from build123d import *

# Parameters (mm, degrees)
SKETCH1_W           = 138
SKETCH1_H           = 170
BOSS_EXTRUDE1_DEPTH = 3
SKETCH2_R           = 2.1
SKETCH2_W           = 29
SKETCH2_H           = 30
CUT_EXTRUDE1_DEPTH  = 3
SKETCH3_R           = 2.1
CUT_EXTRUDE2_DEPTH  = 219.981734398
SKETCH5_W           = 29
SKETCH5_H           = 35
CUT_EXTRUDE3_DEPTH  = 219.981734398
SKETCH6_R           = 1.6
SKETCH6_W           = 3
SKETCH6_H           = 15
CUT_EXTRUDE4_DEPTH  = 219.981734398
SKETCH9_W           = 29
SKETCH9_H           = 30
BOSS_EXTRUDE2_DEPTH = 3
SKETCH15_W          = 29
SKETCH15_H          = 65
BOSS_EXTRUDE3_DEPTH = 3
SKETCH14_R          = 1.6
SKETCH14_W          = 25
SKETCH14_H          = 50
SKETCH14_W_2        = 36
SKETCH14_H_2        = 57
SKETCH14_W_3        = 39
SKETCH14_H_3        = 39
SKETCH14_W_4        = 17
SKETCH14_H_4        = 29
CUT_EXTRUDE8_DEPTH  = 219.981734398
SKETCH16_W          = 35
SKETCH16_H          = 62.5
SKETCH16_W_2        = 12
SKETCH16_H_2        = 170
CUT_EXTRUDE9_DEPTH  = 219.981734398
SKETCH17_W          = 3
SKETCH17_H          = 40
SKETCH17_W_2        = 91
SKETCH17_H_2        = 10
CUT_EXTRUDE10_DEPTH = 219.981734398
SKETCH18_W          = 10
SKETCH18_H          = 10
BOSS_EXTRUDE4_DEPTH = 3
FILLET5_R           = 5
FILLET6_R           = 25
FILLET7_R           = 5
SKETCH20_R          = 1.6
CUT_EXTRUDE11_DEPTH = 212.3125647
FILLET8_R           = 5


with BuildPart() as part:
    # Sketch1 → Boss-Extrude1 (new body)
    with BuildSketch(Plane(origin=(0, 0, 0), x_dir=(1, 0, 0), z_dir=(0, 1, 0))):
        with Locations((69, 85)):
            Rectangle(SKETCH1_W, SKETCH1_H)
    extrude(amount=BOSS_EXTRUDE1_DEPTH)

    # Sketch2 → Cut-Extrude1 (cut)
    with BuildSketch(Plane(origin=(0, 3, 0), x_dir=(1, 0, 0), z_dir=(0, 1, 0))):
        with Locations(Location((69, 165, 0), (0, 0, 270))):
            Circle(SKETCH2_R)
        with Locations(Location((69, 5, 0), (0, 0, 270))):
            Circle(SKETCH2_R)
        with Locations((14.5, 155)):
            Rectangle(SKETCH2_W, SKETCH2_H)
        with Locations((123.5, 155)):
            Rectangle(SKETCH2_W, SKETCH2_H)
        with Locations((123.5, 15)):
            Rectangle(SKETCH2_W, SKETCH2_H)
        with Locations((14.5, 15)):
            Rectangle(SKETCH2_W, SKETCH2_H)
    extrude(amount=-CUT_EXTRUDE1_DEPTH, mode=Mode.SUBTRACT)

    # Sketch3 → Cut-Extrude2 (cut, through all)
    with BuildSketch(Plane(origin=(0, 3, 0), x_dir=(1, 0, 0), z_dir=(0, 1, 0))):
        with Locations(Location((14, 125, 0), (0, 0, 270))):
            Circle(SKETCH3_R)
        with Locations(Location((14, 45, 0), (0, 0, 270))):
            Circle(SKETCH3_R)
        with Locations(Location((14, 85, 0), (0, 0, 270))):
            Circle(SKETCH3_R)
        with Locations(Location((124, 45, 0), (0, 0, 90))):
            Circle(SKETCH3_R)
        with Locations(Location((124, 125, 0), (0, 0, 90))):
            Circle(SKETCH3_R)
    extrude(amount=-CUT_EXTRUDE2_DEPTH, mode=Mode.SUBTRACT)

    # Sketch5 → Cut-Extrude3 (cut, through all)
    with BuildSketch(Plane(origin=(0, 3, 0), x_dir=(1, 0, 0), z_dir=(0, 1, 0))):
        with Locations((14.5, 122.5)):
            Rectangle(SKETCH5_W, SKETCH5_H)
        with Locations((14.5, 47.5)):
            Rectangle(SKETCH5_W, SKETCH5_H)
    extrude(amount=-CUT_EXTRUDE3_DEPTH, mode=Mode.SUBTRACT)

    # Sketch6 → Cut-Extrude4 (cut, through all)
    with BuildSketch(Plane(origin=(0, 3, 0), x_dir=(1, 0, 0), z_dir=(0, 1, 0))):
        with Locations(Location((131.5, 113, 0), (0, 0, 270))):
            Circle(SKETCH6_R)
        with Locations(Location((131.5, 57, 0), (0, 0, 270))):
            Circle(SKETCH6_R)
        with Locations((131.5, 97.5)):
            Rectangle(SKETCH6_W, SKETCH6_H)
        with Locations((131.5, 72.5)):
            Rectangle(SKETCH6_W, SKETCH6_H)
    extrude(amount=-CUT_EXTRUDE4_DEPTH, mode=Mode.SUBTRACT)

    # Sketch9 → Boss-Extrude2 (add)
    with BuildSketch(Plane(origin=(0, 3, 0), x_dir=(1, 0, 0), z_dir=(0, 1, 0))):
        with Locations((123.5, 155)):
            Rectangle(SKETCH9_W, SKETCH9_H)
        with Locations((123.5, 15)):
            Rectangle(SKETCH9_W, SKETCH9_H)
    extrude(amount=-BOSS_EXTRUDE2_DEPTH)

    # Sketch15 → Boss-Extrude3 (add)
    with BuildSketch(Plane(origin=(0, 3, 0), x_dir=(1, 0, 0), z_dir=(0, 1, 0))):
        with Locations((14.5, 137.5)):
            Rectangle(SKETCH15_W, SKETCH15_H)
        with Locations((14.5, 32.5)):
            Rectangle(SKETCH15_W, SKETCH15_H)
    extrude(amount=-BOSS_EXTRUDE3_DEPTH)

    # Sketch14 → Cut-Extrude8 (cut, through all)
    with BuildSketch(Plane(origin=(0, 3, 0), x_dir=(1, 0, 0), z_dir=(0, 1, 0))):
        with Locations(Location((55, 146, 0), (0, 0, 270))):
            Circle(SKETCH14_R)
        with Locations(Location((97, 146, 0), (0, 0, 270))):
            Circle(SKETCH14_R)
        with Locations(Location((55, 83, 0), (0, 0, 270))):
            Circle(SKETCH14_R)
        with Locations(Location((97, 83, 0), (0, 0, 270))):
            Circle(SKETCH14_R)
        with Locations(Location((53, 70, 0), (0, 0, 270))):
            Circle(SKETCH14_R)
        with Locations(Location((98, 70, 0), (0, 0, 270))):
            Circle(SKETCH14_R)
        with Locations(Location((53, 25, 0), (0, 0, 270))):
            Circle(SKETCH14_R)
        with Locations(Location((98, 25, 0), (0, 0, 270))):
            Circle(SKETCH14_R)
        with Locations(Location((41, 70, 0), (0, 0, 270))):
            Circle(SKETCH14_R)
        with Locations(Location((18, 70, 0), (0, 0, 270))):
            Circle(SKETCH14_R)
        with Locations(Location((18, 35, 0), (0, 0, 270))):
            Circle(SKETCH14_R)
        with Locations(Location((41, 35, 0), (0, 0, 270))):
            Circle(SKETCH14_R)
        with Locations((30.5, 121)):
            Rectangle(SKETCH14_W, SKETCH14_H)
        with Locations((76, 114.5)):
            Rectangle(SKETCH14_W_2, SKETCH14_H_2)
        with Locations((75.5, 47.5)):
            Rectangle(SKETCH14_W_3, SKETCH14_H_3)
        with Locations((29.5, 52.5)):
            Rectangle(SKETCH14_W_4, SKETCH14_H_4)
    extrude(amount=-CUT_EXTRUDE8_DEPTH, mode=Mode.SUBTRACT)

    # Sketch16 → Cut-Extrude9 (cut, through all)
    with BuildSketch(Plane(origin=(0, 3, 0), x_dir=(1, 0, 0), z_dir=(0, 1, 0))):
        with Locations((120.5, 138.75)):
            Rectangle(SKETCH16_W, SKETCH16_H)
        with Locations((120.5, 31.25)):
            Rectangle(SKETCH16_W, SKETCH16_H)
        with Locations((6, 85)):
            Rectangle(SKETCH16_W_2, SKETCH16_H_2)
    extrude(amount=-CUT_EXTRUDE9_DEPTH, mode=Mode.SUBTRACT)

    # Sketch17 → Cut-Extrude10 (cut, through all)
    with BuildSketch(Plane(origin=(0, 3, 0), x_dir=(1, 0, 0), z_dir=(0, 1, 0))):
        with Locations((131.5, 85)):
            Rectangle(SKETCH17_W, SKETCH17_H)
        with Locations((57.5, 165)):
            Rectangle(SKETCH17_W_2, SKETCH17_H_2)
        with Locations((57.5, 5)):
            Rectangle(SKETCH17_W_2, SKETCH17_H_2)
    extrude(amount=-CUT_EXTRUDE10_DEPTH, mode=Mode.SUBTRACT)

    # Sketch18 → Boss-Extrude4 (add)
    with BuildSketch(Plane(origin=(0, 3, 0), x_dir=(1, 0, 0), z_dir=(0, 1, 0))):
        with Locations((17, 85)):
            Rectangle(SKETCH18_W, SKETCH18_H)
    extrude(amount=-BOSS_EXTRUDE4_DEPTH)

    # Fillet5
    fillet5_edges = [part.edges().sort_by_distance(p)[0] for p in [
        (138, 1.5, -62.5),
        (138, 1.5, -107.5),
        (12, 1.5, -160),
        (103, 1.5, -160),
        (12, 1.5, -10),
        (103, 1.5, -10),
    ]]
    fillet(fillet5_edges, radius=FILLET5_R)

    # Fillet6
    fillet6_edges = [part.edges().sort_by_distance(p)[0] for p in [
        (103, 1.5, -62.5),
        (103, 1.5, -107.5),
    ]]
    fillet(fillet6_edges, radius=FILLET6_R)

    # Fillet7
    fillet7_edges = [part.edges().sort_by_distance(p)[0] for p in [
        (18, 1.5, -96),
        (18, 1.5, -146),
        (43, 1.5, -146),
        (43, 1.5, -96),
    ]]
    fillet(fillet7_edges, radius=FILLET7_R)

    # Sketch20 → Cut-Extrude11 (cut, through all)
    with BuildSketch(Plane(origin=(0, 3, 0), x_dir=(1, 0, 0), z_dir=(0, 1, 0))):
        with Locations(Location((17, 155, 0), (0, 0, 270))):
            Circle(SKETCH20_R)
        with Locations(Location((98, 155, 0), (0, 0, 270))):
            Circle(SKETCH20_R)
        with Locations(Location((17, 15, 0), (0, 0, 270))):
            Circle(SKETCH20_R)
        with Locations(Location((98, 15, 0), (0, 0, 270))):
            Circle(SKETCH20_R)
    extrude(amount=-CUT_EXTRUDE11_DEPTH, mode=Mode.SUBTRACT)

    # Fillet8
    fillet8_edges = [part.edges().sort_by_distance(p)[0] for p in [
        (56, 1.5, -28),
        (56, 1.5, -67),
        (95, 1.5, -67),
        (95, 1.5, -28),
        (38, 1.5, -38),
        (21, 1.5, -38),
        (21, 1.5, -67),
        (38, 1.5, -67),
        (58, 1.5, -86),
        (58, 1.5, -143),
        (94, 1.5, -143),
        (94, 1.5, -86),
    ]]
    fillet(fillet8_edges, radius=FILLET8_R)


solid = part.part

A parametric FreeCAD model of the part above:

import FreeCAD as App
import Part
import Sketcher
Q = App.Units.Quantity


def edges_at(feature, points):
    """Names of the edges that pass closest to the given points."""
    edges = feature.Shape.Edges
    near = lambda p: min(range(len(edges)), key=lambda i: edges[i].distToShape(Part.Vertex(*p))[0])
    return sorted({f"Edge{near(p) + 1}" for p in points})

doc = App.newDocument("Part")
body = doc.addObject("PartDesign::Body", "Body")

# Sketch on XZ plane
sketch1 = body.newObject("Sketcher::SketchObject", "Sketch")
sketch1.AttachmentSupport = (doc.getObject("XZ_Plane"), [""])
sketch1.MapMode = "FlatFace"
sketch1.addGeometry(Part.LineSegment(App.Vector(0, -170, 0), App.Vector(0, 0, 0)), False)
sketch1.addGeometry(Part.LineSegment(App.Vector(0, 0, 0), App.Vector(138, 0, 0)), False)
sketch1.addGeometry(Part.LineSegment(App.Vector(138, 0, 0), App.Vector(138, -170, 0)), False)
sketch1.addGeometry(Part.LineSegment(App.Vector(138, -170, 0), App.Vector(0, -170, 0)), False)
sketch1.addConstraint(Sketcher.Constraint("Coincident", 0, 2, 1, 1))
sketch1.addConstraint(Sketcher.Constraint("Coincident", 1, 2, 2, 1))
sketch1.addConstraint(Sketcher.Constraint("Coincident", 2, 2, 3, 1))
sketch1.addConstraint(Sketcher.Constraint("Coincident", 3, 2, 0, 1))
sketch1.addConstraint(Sketcher.Constraint("Vertical", 0))
sketch1.addConstraint(Sketcher.Constraint("Horizontal", 1))
sketch1.addConstraint(Sketcher.Constraint("Vertical", 2))
sketch1.addConstraint(Sketcher.Constraint("Horizontal", 3))
sketch1.addConstraint(Sketcher.Constraint("Coincident", 0, 2, -1, 1))
sketch1.addConstraint(Sketcher.Constraint("DistanceX", 1, 1, 1, 2, Q("138 mm")))
sketch1.addConstraint(Sketcher.Constraint("DistanceY", 0, 1, 0, 2, Q("170 mm")))
pad1 = body.newObject("PartDesign::Pad", "Pad")
pad1.Profile = sketch1
pad1.Length = 3
pad1.Reversed = True

# Sketch on XZ plane
sketch2 = body.newObject("Sketcher::SketchObject", "Sketch001")
sketch2.AttachmentSupport = (doc.getObject("XZ_Plane"), [""])
sketch2.MapMode = "FlatFace"
sketch2.AttachmentOffset = App.Placement(App.Vector(0, 0, -3), App.Rotation())
sketch2.addGeometry(Part.Circle(App.Vector(69, -165, 0), App.Vector(0, 0, 1), 2.1), False)
sketch2.addGeometry(Part.Circle(App.Vector(69, -5, 0), App.Vector(0, 0, 1), 2.1), False)
sketch2.addGeometry(Part.LineSegment(App.Vector(0, -170, 0), App.Vector(0, -140, 0)), False)
sketch2.addGeometry(Part.LineSegment(App.Vector(0, -140, 0), App.Vector(29, -140, 0)), False)
sketch2.addGeometry(Part.LineSegment(App.Vector(29, -140, 0), App.Vector(29, -170, 0)), False)
sketch2.addGeometry(Part.LineSegment(App.Vector(29, -170, 0), App.Vector(0, -170, 0)), False)
sketch2.addGeometry(Part.LineSegment(App.Vector(109, -170, 0), App.Vector(109, -140, 0)), False)
sketch2.addGeometry(Part.LineSegment(App.Vector(109, -140, 0), App.Vector(138, -140, 0)), False)
sketch2.addGeometry(Part.LineSegment(App.Vector(138, -140, 0), App.Vector(138, -170, 0)), False)
sketch2.addGeometry(Part.LineSegment(App.Vector(138, -170, 0), App.Vector(109, -170, 0)), False)
sketch2.addGeometry(Part.LineSegment(App.Vector(109, -30, 0), App.Vector(109, 0, 0)), False)
sketch2.addGeometry(Part.LineSegment(App.Vector(109, 0, 0), App.Vector(138, 0, 0)), False)
sketch2.addGeometry(Part.LineSegment(App.Vector(138, 0, 0), App.Vector(138, -30, 0)), False)
sketch2.addGeometry(Part.LineSegment(App.Vector(138, -30, 0), App.Vector(109, -30, 0)), False)
sketch2.addGeometry(Part.LineSegment(App.Vector(0, -30, 0), App.Vector(0, 0, 0)), False)
sketch2.addGeometry(Part.LineSegment(App.Vector(0, 0, 0), App.Vector(29, 0, 0)), False)
sketch2.addGeometry(Part.LineSegment(App.Vector(29, 0, 0), App.Vector(29, -30, 0)), False)
sketch2.addGeometry(Part.LineSegment(App.Vector(29, -30, 0), App.Vector(0, -30, 0)), False)
sketch2.addConstraint(Sketcher.Constraint("Coincident", 2, 2, 3, 1))
sketch2.addConstraint(Sketcher.Constraint("Coincident", 3, 2, 4, 1))
sketch2.addConstraint(Sketcher.Constraint("Coincident", 4, 2, 5, 1))
sketch2.addConstraint(Sketcher.Constraint("Coincident", 5, 2, 2, 1))
sketch2.addConstraint(Sketcher.Constraint("Coincident", 6, 2, 7, 1))
sketch2.addConstraint(Sketcher.Constraint("Coincident", 7, 2, 8, 1))
sketch2.addConstraint(Sketcher.Constraint("Coincident", 8, 2, 9, 1))
sketch2.addConstraint(Sketcher.Constraint("Coincident", 9, 2, 6, 1))
sketch2.addConstraint(Sketcher.Constraint("Coincident", 10, 2, 11, 1))
sketch2.addConstraint(Sketcher.Constraint("Coincident", 11, 2, 12, 1))
sketch2.addConstraint(Sketcher.Constraint("Coincident", 12, 2, 13, 1))
sketch2.addConstraint(Sketcher.Constraint("Coincident", 13, 2, 10, 1))
sketch2.addConstraint(Sketcher.Constraint("Coincident", 14, 2, 15, 1))
sketch2.addConstraint(Sketcher.Constraint("Coincident", 15, 2, 16, 1))
sketch2.addConstraint(Sketcher.Constraint("Coincident", 16, 2, 17, 1))
sketch2.addConstraint(Sketcher.Constraint("Coincident", 17, 2, 14, 1))
sketch2.addConstraint(Sketcher.Constraint("Vertical", 2))
sketch2.addConstraint(Sketcher.Constraint("Horizontal", 3))
sketch2.addConstraint(Sketcher.Constraint("Vertical", 4))
sketch2.addConstraint(Sketcher.Constraint("Horizontal", 5))
sketch2.addConstraint(Sketcher.Constraint("Vertical", 6))
sketch2.addConstraint(Sketcher.Constraint("Horizontal", 7))
sketch2.addConstraint(Sketcher.Constraint("Vertical", 8))
sketch2.addConstraint(Sketcher.Constraint("Horizontal", 9))
sketch2.addConstraint(Sketcher.Constraint("Vertical", 10))
sketch2.addConstraint(Sketcher.Constraint("Horizontal", 11))
sketch2.addConstraint(Sketcher.Constraint("Vertical", 12))
sketch2.addConstraint(Sketcher.Constraint("Horizontal", 13))
sketch2.addConstraint(Sketcher.Constraint("Vertical", 14))
sketch2.addConstraint(Sketcher.Constraint("Horizontal", 15))
sketch2.addConstraint(Sketcher.Constraint("Vertical", 16))
sketch2.addConstraint(Sketcher.Constraint("Horizontal", 17))
sketch2.addConstraint(Sketcher.Constraint("Coincident", 14, 2, -1, 1))
sketch2.addConstraint(Sketcher.Constraint("Equal", 0, 1))
sketch2.addConstraint(Sketcher.Constraint("PointOnObject", 2, 2, -2))
sketch2.addConstraint(Sketcher.Constraint("PointOnObject", 10, 2, -1))
sketch2.addConstraint(Sketcher.Constraint("Horizontal", 3, 2, 6, 2))
sketch2.addConstraint(Sketcher.Constraint("Horizontal", 5, 2, 8, 2))
sketch2.addConstraint(Sketcher.Constraint("Horizontal", 13, 2, 16, 2))
sketch2.addConstraint(Sketcher.Constraint("Vertical", 0, 3, 1, 3))
sketch2.addConstraint(Sketcher.Constraint("Vertical", 9, 2, 10, 2))
sketch2.addConstraint(Sketcher.Constraint("Vertical", 8, 2, 11, 2))
sketch2.addConstraint(Sketcher.Constraint("Vertical", 4, 2, 15, 2))
sketch2.addConstraint(Sketcher.Constraint("Equal", 5, 7))
sketch2.addConstraint(Sketcher.Constraint("Equal", 8, 10))
sketch2.addConstraint(Sketcher.Constraint("Diameter", 0, Q("4.2 mm")))
sketch2.addConstraint(Sketcher.Constraint("DistanceX", 3, 1, 3, 2, Q("29 mm")))
sketch2.addConstraint(Sketcher.Constraint("DistanceY", 2, 1, 2, 2, Q("30 mm")))
sketch2.addConstraint(Sketcher.Constraint("DistanceX", -1, 1, 0, 3, Q("69 mm")))
sketch2.addConstraint(Sketcher.Constraint("DistanceY", 0, 3, -1, 1, Q("165 mm")))
sketch2.addConstraint(Sketcher.Constraint("DistanceY", 1, 3, -1, 1, Q("5 mm")))
sketch2.addConstraint(Sketcher.Constraint("DistanceY", 2, 2, -1, 1, Q("140 mm")))
sketch2.addConstraint(Sketcher.Constraint("DistanceX", -1, 1, 6, 2, Q("109 mm")))
pocket1 = body.newObject("PartDesign::Pocket", "Pocket")
pocket1.Profile = sketch2
pocket1.Length = 3
pocket1.Reversed = True

# Sketch on XZ plane
sketch3 = body.newObject("Sketcher::SketchObject", "Sketch002")
sketch3.AttachmentSupport = (doc.getObject("XZ_Plane"), [""])
sketch3.MapMode = "FlatFace"
sketch3.AttachmentOffset = App.Placement(App.Vector(0, 0, -3), App.Rotation())
sketch3.addGeometry(Part.Circle(App.Vector(14, -125, 0), App.Vector(0, 0, 1), 2.1), False)
sketch3.addGeometry(Part.Circle(App.Vector(14, -45, 0), App.Vector(0, 0, 1), 2.1), False)
sketch3.addGeometry(Part.Circle(App.Vector(14, -85, 0), App.Vector(0, 0, 1), 2.1), False)
sketch3.addGeometry(Part.Circle(App.Vector(124, -45, 0), App.Vector(0, 0, 1), 2.1), False)
sketch3.addGeometry(Part.Circle(App.Vector(124, -125, 0), App.Vector(0, 0, 1), 2.1), False)
sketch3.addConstraint(Sketcher.Constraint("Equal", 0, 1))
sketch3.addConstraint(Sketcher.Constraint("Equal", 1, 2))
sketch3.addConstraint(Sketcher.Constraint("Equal", 2, 3))
sketch3.addConstraint(Sketcher.Constraint("Equal", 3, 4))
sketch3.addConstraint(Sketcher.Constraint("Horizontal", 1, 3, 3, 3))
sketch3.addConstraint(Sketcher.Constraint("Horizontal", 0, 3, 4, 3))
sketch3.addConstraint(Sketcher.Constraint("Vertical", 0, 3, 1, 3))
sketch3.addConstraint(Sketcher.Constraint("Vertical", 1, 3, 2, 3))
sketch3.addConstraint(Sketcher.Constraint("Vertical", 3, 3, 4, 3))
sketch3.addConstraint(Sketcher.Constraint("Diameter", 0, Q("4.2 mm")))
sketch3.addConstraint(Sketcher.Constraint("DistanceX", -1, 1, 0, 3, Q("14 mm")))
sketch3.addConstraint(Sketcher.Constraint("DistanceY", 0, 3, -1, 1, Q("125 mm")))
sketch3.addConstraint(Sketcher.Constraint("DistanceY", 1, 3, -1, 1, Q("45 mm")))
sketch3.addConstraint(Sketcher.Constraint("DistanceY", 2, 3, -1, 1, Q("85 mm")))
sketch3.addConstraint(Sketcher.Constraint("DistanceX", -1, 1, 3, 3, Q("124 mm")))
pocket2 = body.newObject("PartDesign::Pocket", "Pocket001")
pocket2.Profile = sketch3
pocket2.Type = "ThroughAll"
pocket2.Reversed = True

# Sketch on XZ plane
sketch4 = body.newObject("Sketcher::SketchObject", "Sketch003")
sketch4.AttachmentSupport = (doc.getObject("XZ_Plane"), [""])
sketch4.MapMode = "FlatFace"
sketch4.AttachmentOffset = App.Placement(App.Vector(0, 0, -3), App.Rotation())
sketch4.addGeometry(Part.LineSegment(App.Vector(0, -140, 0), App.Vector(0, -105, 0)), False)
sketch4.addGeometry(Part.LineSegment(App.Vector(0, -105, 0), App.Vector(29, -105, 0)), False)
sketch4.addGeometry(Part.LineSegment(App.Vector(29, -105, 0), App.Vector(29, -140, 0)), False)
sketch4.addGeometry(Part.LineSegment(App.Vector(29, -140, 0), App.Vector(0, -140, 0)), False)
sketch4.addGeometry(Part.LineSegment(App.Vector(0, -65, 0), App.Vector(0, -30, 0)), False)
sketch4.addGeometry(Part.LineSegment(App.Vector(0, -30, 0), App.Vector(29, -30, 0)), False)
sketch4.addGeometry(Part.LineSegment(App.Vector(29, -30, 0), App.Vector(29, -65, 0)), False)
sketch4.addGeometry(Part.LineSegment(App.Vector(29, -65, 0), App.Vector(0, -65, 0)), False)
sketch4.addConstraint(Sketcher.Constraint("Coincident", 0, 2, 1, 1))
sketch4.addConstraint(Sketcher.Constraint("Coincident", 1, 2, 2, 1))
sketch4.addConstraint(Sketcher.Constraint("Coincident", 2, 2, 3, 1))
sketch4.addConstraint(Sketcher.Constraint("Coincident", 3, 2, 0, 1))
sketch4.addConstraint(Sketcher.Constraint("Coincident", 4, 2, 5, 1))
sketch4.addConstraint(Sketcher.Constraint("Coincident", 5, 2, 6, 1))
sketch4.addConstraint(Sketcher.Constraint("Coincident", 6, 2, 7, 1))
sketch4.addConstraint(Sketcher.Constraint("Coincident", 7, 2, 4, 1))
sketch4.addConstraint(Sketcher.Constraint("Vertical", 0))
sketch4.addConstraint(Sketcher.Constraint("Horizontal", 1))
sketch4.addConstraint(Sketcher.Constraint("Vertical", 2))
sketch4.addConstraint(Sketcher.Constraint("Horizontal", 3))
sketch4.addConstraint(Sketcher.Constraint("Vertical", 4))
sketch4.addConstraint(Sketcher.Constraint("Horizontal", 5))
sketch4.addConstraint(Sketcher.Constraint("Vertical", 6))
sketch4.addConstraint(Sketcher.Constraint("Horizontal", 7))
sketch4.addConstraint(Sketcher.Constraint("PointOnObject", 0, 2, -2))
sketch4.addConstraint(Sketcher.Constraint("PointOnObject", 4, 2, -2))
sketch4.addConstraint(Sketcher.Constraint("Vertical", 2, 2, 5, 2))
sketch4.addConstraint(Sketcher.Constraint("Equal", 2, 4))
sketch4.addConstraint(Sketcher.Constraint("DistanceX", 1, 1, 1, 2, Q("29 mm")))
sketch4.addConstraint(Sketcher.Constraint("DistanceY", 0, 1, 0, 2, Q("35 mm")))
sketch4.addConstraint(Sketcher.Constraint("DistanceY", 0, 2, -1, 1, Q("105 mm")))
sketch4.addConstraint(Sketcher.Constraint("DistanceY", 4, 2, -1, 1, Q("30 mm")))
pocket3 = body.newObject("PartDesign::Pocket", "Pocket002")
pocket3.Profile = sketch4
pocket3.Type = "ThroughAll"
pocket3.Reversed = True

# Sketch on XZ plane
sketch5 = body.newObject("Sketcher::SketchObject", "Sketch004")
sketch5.AttachmentSupport = (doc.getObject("XZ_Plane"), [""])
sketch5.MapMode = "FlatFace"
sketch5.AttachmentOffset = App.Placement(App.Vector(0, 0, -3), App.Rotation())
sketch5.addGeometry(Part.Circle(App.Vector(131.5, -113, 0), App.Vector(0, 0, 1), 1.6), False)
sketch5.addGeometry(Part.Circle(App.Vector(131.5, -57, 0), App.Vector(0, 0, 1), 1.6), False)
sketch5.addGeometry(Part.LineSegment(App.Vector(130, -105, 0), App.Vector(130, -90, 0)), False)
sketch5.addGeometry(Part.LineSegment(App.Vector(130, -90, 0), App.Vector(133, -90, 0)), False)
sketch5.addGeometry(Part.LineSegment(App.Vector(133, -90, 0), App.Vector(133, -105, 0)), False)
sketch5.addGeometry(Part.LineSegment(App.Vector(133, -105, 0), App.Vector(130, -105, 0)), False)
sketch5.addGeometry(Part.LineSegment(App.Vector(130, -80, 0), App.Vector(130, -65, 0)), False)
sketch5.addGeometry(Part.LineSegment(App.Vector(130, -65, 0), App.Vector(133, -65, 0)), False)
sketch5.addGeometry(Part.LineSegment(App.Vector(133, -65, 0), App.Vector(133, -80, 0)), False)
sketch5.addGeometry(Part.LineSegment(App.Vector(133, -80, 0), App.Vector(130, -80, 0)), False)
sketch5.addConstraint(Sketcher.Constraint("Coincident", 2, 2, 3, 1))
sketch5.addConstraint(Sketcher.Constraint("Coincident", 3, 2, 4, 1))
sketch5.addConstraint(Sketcher.Constraint("Coincident", 4, 2, 5, 1))
sketch5.addConstraint(Sketcher.Constraint("Coincident", 5, 2, 2, 1))
sketch5.addConstraint(Sketcher.Constraint("Coincident", 6, 2, 7, 1))
sketch5.addConstraint(Sketcher.Constraint("Coincident", 7, 2, 8, 1))
sketch5.addConstraint(Sketcher.Constraint("Coincident", 8, 2, 9, 1))
sketch5.addConstraint(Sketcher.Constraint("Coincident", 9, 2, 6, 1))
sketch5.addConstraint(Sketcher.Constraint("Vertical", 2))
sketch5.addConstraint(Sketcher.Constraint("Horizontal", 3))
sketch5.addConstraint(Sketcher.Constraint("Vertical", 4))
sketch5.addConstraint(Sketcher.Constraint("Horizontal", 5))
sketch5.addConstraint(Sketcher.Constraint("Vertical", 6))
sketch5.addConstraint(Sketcher.Constraint("Horizontal", 7))
sketch5.addConstraint(Sketcher.Constraint("Vertical", 8))
sketch5.addConstraint(Sketcher.Constraint("Horizontal", 9))
sketch5.addConstraint(Sketcher.Constraint("Equal", 0, 1))
sketch5.addConstraint(Sketcher.Constraint("Vertical", 0, 3, 1, 3))
sketch5.addConstraint(Sketcher.Constraint("Vertical", 5, 2, 6, 2))
sketch5.addConstraint(Sketcher.Constraint("Vertical", 4, 2, 7, 2))
sketch5.addConstraint(Sketcher.Constraint("Equal", 4, 6))
sketch5.addConstraint(Sketcher.Constraint("Diameter", 0, Q("3.2 mm")))
sketch5.addConstraint(Sketcher.Constraint("DistanceX", 3, 1, 3, 2, Q("3 mm")))
sketch5.addConstraint(Sketcher.Constraint("DistanceY", 2, 1, 2, 2, Q("15 mm")))
sketch5.addConstraint(Sketcher.Constraint("DistanceY", 0, 3, -1, 1, Q("113 mm")))
sketch5.addConstraint(Sketcher.Constraint("DistanceY", 1, 3, -1, 1, Q("57 mm")))
sketch5.addConstraint(Sketcher.Constraint("DistanceX", -1, 1, 2, 2, Q("130 mm")))
sketch5.addConstraint(Sketcher.Constraint("DistanceY", 2, 2, -1, 1, Q("90 mm")))
sketch5.addConstraint(Sketcher.Constraint("DistanceY", 6, 2, -1, 1, Q("65 mm")))
sketch5.addConstraint(Sketcher.Constraint("DistanceX", -1, 1, 0, 3, Q("131.5 mm")))
pocket4 = body.newObject("PartDesign::Pocket", "Pocket003")
pocket4.Profile = sketch5
pocket4.Type = "ThroughAll"
pocket4.Reversed = True

# Sketch on XZ plane
sketch6 = body.newObject("Sketcher::SketchObject", "Sketch005")
sketch6.AttachmentSupport = (doc.getObject("XZ_Plane"), [""])
sketch6.MapMode = "FlatFace"
sketch6.AttachmentOffset = App.Placement(App.Vector(0, 0, -3), App.Rotation())
sketch6.addGeometry(Part.LineSegment(App.Vector(109, -170, 0), App.Vector(109, -140, 0)), False)
sketch6.addGeometry(Part.LineSegment(App.Vector(109, -140, 0), App.Vector(138, -140, 0)), False)
sketch6.addGeometry(Part.LineSegment(App.Vector(138, -140, 0), App.Vector(138, -170, 0)), False)
sketch6.addGeometry(Part.LineSegment(App.Vector(138, -170, 0), App.Vector(109, -170, 0)), False)
sketch6.addGeometry(Part.LineSegment(App.Vector(109, -30, 0), App.Vector(109, 0, 0)), False)
sketch6.addGeometry(Part.LineSegment(App.Vector(109, 0, 0), App.Vector(138, 0, 0)), False)
sketch6.addGeometry(Part.LineSegment(App.Vector(138, 0, 0), App.Vector(138, -30, 0)), False)
sketch6.addGeometry(Part.LineSegment(App.Vector(138, -30, 0), App.Vector(109, -30, 0)), False)
sketch6.addConstraint(Sketcher.Constraint("Coincident", 0, 2, 1, 1))
sketch6.addConstraint(Sketcher.Constraint("Coincident", 1, 2, 2, 1))
sketch6.addConstraint(Sketcher.Constraint("Coincident", 2, 2, 3, 1))
sketch6.addConstraint(Sketcher.Constraint("Coincident", 3, 2, 0, 1))
sketch6.addConstraint(Sketcher.Constraint("Coincident", 4, 2, 5, 1))
sketch6.addConstraint(Sketcher.Constraint("Coincident", 5, 2, 6, 1))
sketch6.addConstraint(Sketcher.Constraint("Coincident", 6, 2, 7, 1))
sketch6.addConstraint(Sketcher.Constraint("Coincident", 7, 2, 4, 1))
sketch6.addConstraint(Sketcher.Constraint("Vertical", 0))
sketch6.addConstraint(Sketcher.Constraint("Horizontal", 1))
sketch6.addConstraint(Sketcher.Constraint("Vertical", 2))
sketch6.addConstraint(Sketcher.Constraint("Horizontal", 3))
sketch6.addConstraint(Sketcher.Constraint("Vertical", 4))
sketch6.addConstraint(Sketcher.Constraint("Horizontal", 5))
sketch6.addConstraint(Sketcher.Constraint("Vertical", 6))
sketch6.addConstraint(Sketcher.Constraint("Horizontal", 7))
sketch6.addConstraint(Sketcher.Constraint("PointOnObject", 4, 2, -1))
sketch6.addConstraint(Sketcher.Constraint("Vertical", 3, 2, 4, 2))
sketch6.addConstraint(Sketcher.Constraint("Vertical", 2, 2, 5, 2))
sketch6.addConstraint(Sketcher.Constraint("Equal", 2, 4))
sketch6.addConstraint(Sketcher.Constraint("DistanceX", 1, 1, 1, 2, Q("29 mm")))
sketch6.addConstraint(Sketcher.Constraint("DistanceY", 0, 1, 0, 2, Q("30 mm")))
sketch6.addConstraint(Sketcher.Constraint("DistanceX", -1, 1, 0, 2, Q("109 mm")))
sketch6.addConstraint(Sketcher.Constraint("DistanceY", 0, 2, -1, 1, Q("140 mm")))
pad2 = body.newObject("PartDesign::Pad", "Pad001")
pad2.Profile = sketch6
pad2.Length = 3

# Sketch on XZ plane
sketch7 = body.newObject("Sketcher::SketchObject", "Sketch006")
sketch7.AttachmentSupport = (doc.getObject("XZ_Plane"), [""])
sketch7.MapMode = "FlatFace"
sketch7.AttachmentOffset = App.Placement(App.Vector(0, 0, -3), App.Rotation())
sketch7.addGeometry(Part.LineSegment(App.Vector(0, -170, 0), App.Vector(0, -105, 0)), False)
sketch7.addGeometry(Part.LineSegment(App.Vector(0, -105, 0), App.Vector(29, -105, 0)), False)
sketch7.addGeometry(Part.LineSegment(App.Vector(29, -105, 0), App.Vector(29, -170, 0)), False)
sketch7.addGeometry(Part.LineSegment(App.Vector(29, -170, 0), App.Vector(0, -170, 0)), False)
sketch7.addGeometry(Part.LineSegment(App.Vector(0, -65, 0), App.Vector(0, 0, 0)), False)
sketch7.addGeometry(Part.LineSegment(App.Vector(0, 0, 0), App.Vector(29, 0, 0)), False)
sketch7.addGeometry(Part.LineSegment(App.Vector(29, 0, 0), App.Vector(29, -65, 0)), False)
sketch7.addGeometry(Part.LineSegment(App.Vector(29, -65, 0), App.Vector(0, -65, 0)), False)
sketch7.addConstraint(Sketcher.Constraint("Coincident", 0, 2, 1, 1))
sketch7.addConstraint(Sketcher.Constraint("Coincident", 1, 2, 2, 1))
sketch7.addConstraint(Sketcher.Constraint("Coincident", 2, 2, 3, 1))
sketch7.addConstraint(Sketcher.Constraint("Coincident", 3, 2, 0, 1))
sketch7.addConstraint(Sketcher.Constraint("Coincident", 4, 2, 5, 1))
sketch7.addConstraint(Sketcher.Constraint("Coincident", 5, 2, 6, 1))
sketch7.addConstraint(Sketcher.Constraint("Coincident", 6, 2, 7, 1))
sketch7.addConstraint(Sketcher.Constraint("Coincident", 7, 2, 4, 1))
sketch7.addConstraint(Sketcher.Constraint("Vertical", 0))
sketch7.addConstraint(Sketcher.Constraint("Horizontal", 1))
sketch7.addConstraint(Sketcher.Constraint("Vertical", 2))
sketch7.addConstraint(Sketcher.Constraint("Horizontal", 3))
sketch7.addConstraint(Sketcher.Constraint("Vertical", 4))
sketch7.addConstraint(Sketcher.Constraint("Horizontal", 5))
sketch7.addConstraint(Sketcher.Constraint("Vertical", 6))
sketch7.addConstraint(Sketcher.Constraint("Horizontal", 7))
sketch7.addConstraint(Sketcher.Constraint("Coincident", 4, 2, -1, 1))
sketch7.addConstraint(Sketcher.Constraint("PointOnObject", 0, 2, -2))
sketch7.addConstraint(Sketcher.Constraint("Vertical", 2, 2, 5, 2))
sketch7.addConstraint(Sketcher.Constraint("Equal", 2, 4))
sketch7.addConstraint(Sketcher.Constraint("DistanceX", 1, 1, 1, 2, Q("29 mm")))
sketch7.addConstraint(Sketcher.Constraint("DistanceY", 0, 1, 0, 2, Q("65 mm")))
sketch7.addConstraint(Sketcher.Constraint("DistanceY", 0, 2, -1, 1, Q("105 mm")))
pad3 = body.newObject("PartDesign::Pad", "Pad002")
pad3.Profile = sketch7
pad3.Length = 3

# Sketch on XZ plane
sketch8 = body.newObject("Sketcher::SketchObject", "Sketch007")
sketch8.AttachmentSupport = (doc.getObject("XZ_Plane"), [""])
sketch8.MapMode = "FlatFace"
sketch8.AttachmentOffset = App.Placement(App.Vector(0, 0, -3), App.Rotation())
sketch8.addGeometry(Part.Circle(App.Vector(55, -146, 0), App.Vector(0, 0, 1), 1.6), False)
sketch8.addGeometry(Part.Circle(App.Vector(97, -146, 0), App.Vector(0, 0, 1), 1.6), False)
sketch8.addGeometry(Part.Circle(App.Vector(55, -83, 0), App.Vector(0, 0, 1), 1.6), False)
sketch8.addGeometry(Part.Circle(App.Vector(97, -83, 0), App.Vector(0, 0, 1), 1.6), False)
sketch8.addGeometry(Part.Circle(App.Vector(53, -70, 0), App.Vector(0, 0, 1), 1.6), False)
sketch8.addGeometry(Part.Circle(App.Vector(98, -70, 0), App.Vector(0, 0, 1), 1.6), False)
sketch8.addGeometry(Part.Circle(App.Vector(53, -25, 0), App.Vector(0, 0, 1), 1.6), False)
sketch8.addGeometry(Part.Circle(App.Vector(98, -25, 0), App.Vector(0, 0, 1), 1.6), False)
sketch8.addGeometry(Part.Circle(App.Vector(41, -70, 0), App.Vector(0, 0, 1), 1.6), False)
sketch8.addGeometry(Part.Circle(App.Vector(18, -70, 0), App.Vector(0, 0, 1), 1.6), False)
sketch8.addGeometry(Part.Circle(App.Vector(18, -35, 0), App.Vector(0, 0, 1), 1.6), False)
sketch8.addGeometry(Part.Circle(App.Vector(41, -35, 0), App.Vector(0, 0, 1), 1.6), False)
sketch8.addGeometry(Part.LineSegment(App.Vector(18, -146, 0), App.Vector(18, -96, 0)), False)
sketch8.addGeometry(Part.LineSegment(App.Vector(18, -96, 0), App.Vector(43, -96, 0)), False)
sketch8.addGeometry(Part.LineSegment(App.Vector(43, -96, 0), App.Vector(43, -146, 0)), False)
sketch8.addGeometry(Part.LineSegment(App.Vector(43, -146, 0), App.Vector(18, -146, 0)), False)
sketch8.addGeometry(Part.LineSegment(App.Vector(58, -143, 0), App.Vector(58, -86, 0)), False)
sketch8.addGeometry(Part.LineSegment(App.Vector(58, -86, 0), App.Vector(94, -86, 0)), False)
sketch8.addGeometry(Part.LineSegment(App.Vector(94, -86, 0), App.Vector(94, -143, 0)), False)
sketch8.addGeometry(Part.LineSegment(App.Vector(94, -143, 0), App.Vector(58, -143, 0)), False)
sketch8.addGeometry(Part.LineSegment(App.Vector(56, -67, 0), App.Vector(56, -28, 0)), False)
sketch8.addGeometry(Part.LineSegment(App.Vector(56, -28, 0), App.Vector(95, -28, 0)), False)
sketch8.addGeometry(Part.LineSegment(App.Vector(95, -28, 0), App.Vector(95, -67, 0)), False)
sketch8.addGeometry(Part.LineSegment(App.Vector(95, -67, 0), App.Vector(56, -67, 0)), False)
sketch8.addGeometry(Part.LineSegment(App.Vector(21, -67, 0), App.Vector(21, -38, 0)), False)
sketch8.addGeometry(Part.LineSegment(App.Vector(21, -38, 0), App.Vector(38, -38, 0)), False)
sketch8.addGeometry(Part.LineSegment(App.Vector(38, -38, 0), App.Vector(38, -67, 0)), False)
sketch8.addGeometry(Part.LineSegment(App.Vector(38, -67, 0), App.Vector(21, -67, 0)), False)
sketch8.addConstraint(Sketcher.Constraint("Coincident", 12, 2, 13, 1))
sketch8.addConstraint(Sketcher.Constraint("Coincident", 13, 2, 14, 1))
sketch8.addConstraint(Sketcher.Constraint("Coincident", 14, 2, 15, 1))
sketch8.addConstraint(Sketcher.Constraint("Coincident", 15, 2, 12, 1))
sketch8.addConstraint(Sketcher.Constraint("Coincident", 16, 2, 17, 1))
sketch8.addConstraint(Sketcher.Constraint("Coincident", 17, 2, 18, 1))
sketch8.addConstraint(Sketcher.Constraint("Coincident", 18, 2, 19, 1))
sketch8.addConstraint(Sketcher.Constraint("Coincident", 19, 2, 16, 1))
sketch8.addConstraint(Sketcher.Constraint("Coincident", 20, 2, 21, 1))
sketch8.addConstraint(Sketcher.Constraint("Coincident", 21, 2, 22, 1))
sketch8.addConstraint(Sketcher.Constraint("Coincident", 22, 2, 23, 1))
sketch8.addConstraint(Sketcher.Constraint("Coincident", 23, 2, 20, 1))
sketch8.addConstraint(Sketcher.Constraint("Coincident", 24, 2, 25, 1))
sketch8.addConstraint(Sketcher.Constraint("Coincident", 25, 2, 26, 1))
sketch8.addConstraint(Sketcher.Constraint("Coincident", 26, 2, 27, 1))
sketch8.addConstraint(Sketcher.Constraint("Coincident", 27, 2, 24, 1))
sketch8.addConstraint(Sketcher.Constraint("Vertical", 12))
sketch8.addConstraint(Sketcher.Constraint("Horizontal", 13))
sketch8.addConstraint(Sketcher.Constraint("Vertical", 14))
sketch8.addConstraint(Sketcher.Constraint("Horizontal", 15))
sketch8.addConstraint(Sketcher.Constraint("Vertical", 16))
sketch8.addConstraint(Sketcher.Constraint("Horizontal", 17))
sketch8.addConstraint(Sketcher.Constraint("Vertical", 18))
sketch8.addConstraint(Sketcher.Constraint("Horizontal", 19))
sketch8.addConstraint(Sketcher.Constraint("Vertical", 20))
sketch8.addConstraint(Sketcher.Constraint("Horizontal", 21))
sketch8.addConstraint(Sketcher.Constraint("Vertical", 22))
sketch8.addConstraint(Sketcher.Constraint("Horizontal", 23))
sketch8.addConstraint(Sketcher.Constraint("Vertical", 24))
sketch8.addConstraint(Sketcher.Constraint("Horizontal", 25))
sketch8.addConstraint(Sketcher.Constraint("Vertical", 26))
sketch8.addConstraint(Sketcher.Constraint("Horizontal", 27))
sketch8.addConstraint(Sketcher.Constraint("Equal", 0, 1))
sketch8.addConstraint(Sketcher.Constraint("Equal", 1, 2))
sketch8.addConstraint(Sketcher.Constraint("Equal", 2, 3))
sketch8.addConstraint(Sketcher.Constraint("Equal", 3, 4))
sketch8.addConstraint(Sketcher.Constraint("Equal", 4, 5))
sketch8.addConstraint(Sketcher.Constraint("Equal", 5, 6))
sketch8.addConstraint(Sketcher.Constraint("Equal", 6, 7))
sketch8.addConstraint(Sketcher.Constraint("Equal", 7, 8))
sketch8.addConstraint(Sketcher.Constraint("Equal", 8, 9))
sketch8.addConstraint(Sketcher.Constraint("Equal", 9, 10))
sketch8.addConstraint(Sketcher.Constraint("Equal", 10, 11))
sketch8.addConstraint(Sketcher.Constraint("Horizontal", 0, 3, 1, 3))
sketch8.addConstraint(Sketcher.Constraint("Horizontal", 2, 3, 3, 3))
sketch8.addConstraint(Sketcher.Constraint("Horizontal", 4, 3, 5, 3))
sketch8.addConstraint(Sketcher.Constraint("Horizontal", 6, 3, 7, 3))
sketch8.addConstraint(Sketcher.Constraint("Horizontal", 5, 3, 8, 3))
sketch8.addConstraint(Sketcher.Constraint("Horizontal", 8, 3, 9, 3))
sketch8.addConstraint(Sketcher.Constraint("Horizontal", 10, 3, 11, 3))
sketch8.addConstraint(Sketcher.Constraint("Horizontal", 1, 3, 14, 2))
sketch8.addConstraint(Sketcher.Constraint("Horizontal", 23, 2, 26, 2))
sketch8.addConstraint(Sketcher.Constraint("Vertical", 0, 3, 2, 3))
sketch8.addConstraint(Sketcher.Constraint("Vertical", 1, 3, 3, 3))
sketch8.addConstraint(Sketcher.Constraint("Vertical", 4, 3, 6, 3))
sketch8.addConstraint(Sketcher.Constraint("Vertical", 5, 3, 7, 3))
sketch8.addConstraint(Sketcher.Constraint("Vertical", 9, 3, 10, 3))
sketch8.addConstraint(Sketcher.Constraint("Vertical", 8, 3, 11, 3))
sketch8.addConstraint(Sketcher.Constraint("Vertical", 10, 3, 12, 2))
sketch8.addConstraint(Sketcher.Constraint("Equal", 23, 20))
sketch8.addConstraint(Sketcher.Constraint("Diameter", 0, Q("3.2 mm")))
sketch8.addConstraint(Sketcher.Constraint("DistanceX", 13, 1, 13, 2, Q("25 mm")))
sketch8.addConstraint(Sketcher.Constraint("DistanceX", 17, 1, 17, 2, Q("36 mm")))
sketch8.addConstraint(Sketcher.Constraint("DistanceX", 21, 1, 21, 2, Q("39 mm")))
sketch8.addConstraint(Sketcher.Constraint("DistanceX", 25, 1, 25, 2, Q("17 mm")))
sketch8.addConstraint(Sketcher.Constraint("DistanceY", 12, 1, 12, 2, Q("50 mm")))
sketch8.addConstraint(Sketcher.Constraint("DistanceY", 16, 1, 16, 2, Q("57 mm")))
sketch8.addConstraint(Sketcher.Constraint("DistanceY", 24, 1, 24, 2, Q("29 mm")))
sketch8.addConstraint(Sketcher.Constraint("DistanceX", -1, 1, 0, 3, Q("55 mm")))
sketch8.addConstraint(Sketcher.Constraint("DistanceY", 0, 3, -1, 1, Q("146 mm")))
sketch8.addConstraint(Sketcher.Constraint("DistanceX", -1, 1, 1, 3, Q("97 mm")))
sketch8.addConstraint(Sketcher.Constraint("DistanceY", 2, 3, -1, 1, Q("83 mm")))
sketch8.addConstraint(Sketcher.Constraint("DistanceX", -1, 1, 4, 3, Q("53 mm")))
sketch8.addConstraint(Sketcher.Constraint("DistanceY", 4, 3, -1, 1, Q("70 mm")))
sketch8.addConstraint(Sketcher.Constraint("DistanceX", -1, 1, 5, 3, Q("98 mm")))
sketch8.addConstraint(Sketcher.Constraint("DistanceY", 6, 3, -1, 1, Q("25 mm")))
sketch8.addConstraint(Sketcher.Constraint("DistanceX", -1, 1, 8, 3, Q("41 mm")))
sketch8.addConstraint(Sketcher.Constraint("DistanceX", -1, 1, 9, 3, Q("18 mm")))
sketch8.addConstraint(Sketcher.Constraint("DistanceY", 10, 3, -1, 1, Q("35 mm")))
sketch8.addConstraint(Sketcher.Constraint("DistanceX", -1, 1, 16, 2, Q("58 mm")))
sketch8.addConstraint(Sketcher.Constraint("DistanceY", 16, 2, -1, 1, Q("86 mm")))
sketch8.addConstraint(Sketcher.Constraint("DistanceX", -1, 1, 20, 2, Q("56 mm")))
sketch8.addConstraint(Sketcher.Constraint("DistanceY", 20, 2, -1, 1, Q("28 mm")))
sketch8.addConstraint(Sketcher.Constraint("DistanceX", -1, 1, 24, 2, Q("21 mm")))
pocket5 = body.newObject("PartDesign::Pocket", "Pocket004")
pocket5.Profile = sketch8
pocket5.Type = "ThroughAll"
pocket5.Reversed = True

# Sketch on XZ plane
sketch9 = body.newObject("Sketcher::SketchObject", "Sketch008")
sketch9.AttachmentSupport = (doc.getObject("XZ_Plane"), [""])
sketch9.MapMode = "FlatFace"
sketch9.AttachmentOffset = App.Placement(App.Vector(0, 0, -3), App.Rotation())
sketch9.addGeometry(Part.LineSegment(App.Vector(103, -170, 0), App.Vector(103, -108, 0)), False)
sketch9.addGeometry(Part.LineSegment(App.Vector(103, -108, 0), App.Vector(138, -108, 0)), False)
sketch9.addGeometry(Part.LineSegment(App.Vector(138, -108, 0), App.Vector(138, -170, 0)), False)
sketch9.addGeometry(Part.LineSegment(App.Vector(138, -170, 0), App.Vector(103, -170, 0)), False)
sketch9.addGeometry(Part.LineSegment(App.Vector(103, -62, 0), App.Vector(103, 0, 0)), False)
sketch9.addGeometry(Part.LineSegment(App.Vector(103, 0, 0), App.Vector(138, 0, 0)), False)
sketch9.addGeometry(Part.LineSegment(App.Vector(138, 0, 0), App.Vector(138, -62, 0)), False)
sketch9.addGeometry(Part.LineSegment(App.Vector(138, -62, 0), App.Vector(103, -62, 0)), False)
sketch9.addGeometry(Part.LineSegment(App.Vector(0, -170, 0), App.Vector(0, 0, 0)), False)
sketch9.addGeometry(Part.LineSegment(App.Vector(0, 0, 0), App.Vector(12, 0, 0)), False)
sketch9.addGeometry(Part.LineSegment(App.Vector(12, 0, 0), App.Vector(12, -170, 0)), False)
sketch9.addGeometry(Part.LineSegment(App.Vector(12, -170, 0), App.Vector(0, -170, 0)), False)
sketch9.addConstraint(Sketcher.Constraint("Coincident", 0, 2, 1, 1))
sketch9.addConstraint(Sketcher.Constraint("Coincident", 1, 2, 2, 1))
sketch9.addConstraint(Sketcher.Constraint("Coincident", 2, 2, 3, 1))
sketch9.addConstraint(Sketcher.Constraint("Coincident", 3, 2, 0, 1))
sketch9.addConstraint(Sketcher.Constraint("Coincident", 4, 2, 5, 1))
sketch9.addConstraint(Sketcher.Constraint("Coincident", 5, 2, 6, 1))
sketch9.addConstraint(Sketcher.Constraint("Coincident", 6, 2, 7, 1))
sketch9.addConstraint(Sketcher.Constraint("Coincident", 7, 2, 4, 1))
sketch9.addConstraint(Sketcher.Constraint("Coincident", 8, 2, 9, 1))
sketch9.addConstraint(Sketcher.Constraint("Coincident", 9, 2, 10, 1))
sketch9.addConstraint(Sketcher.Constraint("Coincident", 10, 2, 11, 1))
sketch9.addConstraint(Sketcher.Constraint("Coincident", 11, 2, 8, 1))
sketch9.addConstraint(Sketcher.Constraint("Vertical", 0))
sketch9.addConstraint(Sketcher.Constraint("Horizontal", 1))
sketch9.addConstraint(Sketcher.Constraint("Vertical", 2))
sketch9.addConstraint(Sketcher.Constraint("Horizontal", 3))
sketch9.addConstraint(Sketcher.Constraint("Vertical", 4))
sketch9.addConstraint(Sketcher.Constraint("Horizontal", 5))
sketch9.addConstraint(Sketcher.Constraint("Vertical", 6))
sketch9.addConstraint(Sketcher.Constraint("Horizontal", 7))
sketch9.addConstraint(Sketcher.Constraint("Vertical", 8))
sketch9.addConstraint(Sketcher.Constraint("Horizontal", 9))
sketch9.addConstraint(Sketcher.Constraint("Vertical", 10))
sketch9.addConstraint(Sketcher.Constraint("Horizontal", 11))
sketch9.addConstraint(Sketcher.Constraint("Coincident", 8, 2, -1, 1))
sketch9.addConstraint(Sketcher.Constraint("PointOnObject", 4, 2, -1))
sketch9.addConstraint(Sketcher.Constraint("Horizontal", 3, 2, 10, 2))
sketch9.addConstraint(Sketcher.Constraint("Vertical", 3, 2, 4, 2))
sketch9.addConstraint(Sketcher.Constraint("Vertical", 2, 2, 5, 2))
sketch9.addConstraint(Sketcher.Constraint("Equal", 2, 4))
sketch9.addConstraint(Sketcher.Constraint("DistanceX", 1, 1, 1, 2, Q("35 mm")))
sketch9.addConstraint(Sketcher.Constraint("DistanceX", 9, 1, 9, 2, Q("12 mm")))
sketch9.addConstraint(Sketcher.Constraint("DistanceY", 8, 1, 8, 2, Q("170 mm")))
sketch9.addConstraint(Sketcher.Constraint("DistanceY", 0, 1, 0, 2, Q("62.5 mm")))
sketch9.addConstraint(Sketcher.Constraint("DistanceX", -1, 1, 0, 2, Q("103 mm")))
pocket6 = body.newObject("PartDesign::Pocket", "Pocket005")
pocket6.Profile = sketch9
pocket6.Type = "ThroughAll"
pocket6.Reversed = True

# Sketch on XZ plane
sketch10 = body.newObject("Sketcher::SketchObject", "Sketch009")
sketch10.AttachmentSupport = (doc.getObject("XZ_Plane"), [""])
sketch10.MapMode = "FlatFace"
sketch10.AttachmentOffset = App.Placement(App.Vector(0, 0, -3), App.Rotation())
sketch10.addGeometry(Part.LineSegment(App.Vector(130, -105, 0), App.Vector(130, -65, 0)), False)
sketch10.addGeometry(Part.LineSegment(App.Vector(130, -65, 0), App.Vector(133, -65, 0)), False)
sketch10.addGeometry(Part.LineSegment(App.Vector(133, -65, 0), App.Vector(133, -105, 0)), False)
sketch10.addGeometry(Part.LineSegment(App.Vector(133, -105, 0), App.Vector(130, -105, 0)), False)
sketch10.addGeometry(Part.LineSegment(App.Vector(12, -170, 0), App.Vector(12, -160, 0)), False)
sketch10.addGeometry(Part.LineSegment(App.Vector(12, -160, 0), App.Vector(103, -160, 0)), False)
sketch10.addGeometry(Part.LineSegment(App.Vector(103, -160, 0), App.Vector(103, -170, 0)), False)
sketch10.addGeometry(Part.LineSegment(App.Vector(103, -170, 0), App.Vector(12, -170, 0)), False)
sketch10.addGeometry(Part.LineSegment(App.Vector(12, -10, 0), App.Vector(12, 0, 0)), False)
sketch10.addGeometry(Part.LineSegment(App.Vector(12, 0, 0), App.Vector(103, 0, 0)), False)
sketch10.addGeometry(Part.LineSegment(App.Vector(103, 0, 0), App.Vector(103, -10, 0)), False)
sketch10.addGeometry(Part.LineSegment(App.Vector(103, -10, 0), App.Vector(12, -10, 0)), False)
sketch10.addConstraint(Sketcher.Constraint("Coincident", 0, 2, 1, 1))
sketch10.addConstraint(Sketcher.Constraint("Coincident", 1, 2, 2, 1))
sketch10.addConstraint(Sketcher.Constraint("Coincident", 2, 2, 3, 1))
sketch10.addConstraint(Sketcher.Constraint("Coincident", 3, 2, 0, 1))
sketch10.addConstraint(Sketcher.Constraint("Coincident", 4, 2, 5, 1))
sketch10.addConstraint(Sketcher.Constraint("Coincident", 5, 2, 6, 1))
sketch10.addConstraint(Sketcher.Constraint("Coincident", 6, 2, 7, 1))
sketch10.addConstraint(Sketcher.Constraint("Coincident", 7, 2, 4, 1))
sketch10.addConstraint(Sketcher.Constraint("Coincident", 8, 2, 9, 1))
sketch10.addConstraint(Sketcher.Constraint("Coincident", 9, 2, 10, 1))
sketch10.addConstraint(Sketcher.Constraint("Coincident", 10, 2, 11, 1))
sketch10.addConstraint(Sketcher.Constraint("Coincident", 11, 2, 8, 1))
sketch10.addConstraint(Sketcher.Constraint("Vertical", 0))
sketch10.addConstraint(Sketcher.Constraint("Horizontal", 1))
sketch10.addConstraint(Sketcher.Constraint("Vertical", 2))
sketch10.addConstraint(Sketcher.Constraint("Horizontal", 3))
sketch10.addConstraint(Sketcher.Constraint("Vertical", 4))
sketch10.addConstraint(Sketcher.Constraint("Horizontal", 5))
sketch10.addConstraint(Sketcher.Constraint("Vertical", 6))
sketch10.addConstraint(Sketcher.Constraint("Horizontal", 7))
sketch10.addConstraint(Sketcher.Constraint("Vertical", 8))
sketch10.addConstraint(Sketcher.Constraint("Horizontal", 9))
sketch10.addConstraint(Sketcher.Constraint("Vertical", 10))
sketch10.addConstraint(Sketcher.Constraint("Horizontal", 11))
sketch10.addConstraint(Sketcher.Constraint("PointOnObject", 8, 2, -1))
sketch10.addConstraint(Sketcher.Constraint("Vertical", 7, 2, 8, 2))
sketch10.addConstraint(Sketcher.Constraint("Vertical", 6, 2, 9, 2))
sketch10.addConstraint(Sketcher.Constraint("Equal", 6, 8))
sketch10.addConstraint(Sketcher.Constraint("DistanceX", 1, 1, 1, 2, Q("3 mm")))
sketch10.addConstraint(Sketcher.Constraint("DistanceX", 5, 1, 5, 2, Q("91 mm")))
sketch10.addConstraint(Sketcher.Constraint("DistanceY", 0, 1, 0, 2, Q("40 mm")))
sketch10.addConstraint(Sketcher.Constraint("DistanceY", 4, 1, 4, 2, Q("10 mm")))
sketch10.addConstraint(Sketcher.Constraint("DistanceX", -1, 1, 0, 2, Q("130 mm")))
sketch10.addConstraint(Sketcher.Constraint("DistanceY", 0, 2, -1, 1, Q("65 mm")))
sketch10.addConstraint(Sketcher.Constraint("DistanceX", -1, 1, 4, 2, Q("12 mm")))
sketch10.addConstraint(Sketcher.Constraint("DistanceY", 4, 2, -1, 1, Q("160 mm")))
pocket7 = body.newObject("PartDesign::Pocket", "Pocket006")
pocket7.Profile = sketch10
pocket7.Type = "ThroughAll"
pocket7.Reversed = True

# Sketch on XZ plane
sketch11 = body.newObject("Sketcher::SketchObject", "Sketch010")
sketch11.AttachmentSupport = (doc.getObject("XZ_Plane"), [""])
sketch11.MapMode = "FlatFace"
sketch11.AttachmentOffset = App.Placement(App.Vector(0, 0, -3), App.Rotation())
sketch11.addGeometry(Part.LineSegment(App.Vector(12, -90, 0), App.Vector(12, -80, 0)), False)
sketch11.addGeometry(Part.LineSegment(App.Vector(12, -80, 0), App.Vector(22, -80, 0)), False)
sketch11.addGeometry(Part.LineSegment(App.Vector(22, -80, 0), App.Vector(22, -90, 0)), False)
sketch11.addGeometry(Part.LineSegment(App.Vector(22, -90, 0), App.Vector(12, -90, 0)), False)
sketch11.addConstraint(Sketcher.Constraint("Coincident", 0, 2, 1, 1))
sketch11.addConstraint(Sketcher.Constraint("Coincident", 1, 2, 2, 1))
sketch11.addConstraint(Sketcher.Constraint("Coincident", 2, 2, 3, 1))
sketch11.addConstraint(Sketcher.Constraint("Coincident", 3, 2, 0, 1))
sketch11.addConstraint(Sketcher.Constraint("Vertical", 0))
sketch11.addConstraint(Sketcher.Constraint("Horizontal", 1))
sketch11.addConstraint(Sketcher.Constraint("Vertical", 2))
sketch11.addConstraint(Sketcher.Constraint("Horizontal", 3))
sketch11.addConstraint(Sketcher.Constraint("Equal", 3, 0))
sketch11.addConstraint(Sketcher.Constraint("DistanceX", 1, 1, 1, 2, Q("10 mm")))
sketch11.addConstraint(Sketcher.Constraint("DistanceX", -1, 1, 0, 2, Q("12 mm")))
sketch11.addConstraint(Sketcher.Constraint("DistanceY", 0, 2, -1, 1, Q("80 mm")))
pad4 = body.newObject("PartDesign::Pad", "Pad003")
pad4.Profile = sketch11
pad4.Length = 3
doc.recompute()

fillet = body.newObject("PartDesign::Fillet", "Fillet")
fillet.Base = (pad4, edges_at(pad4, [
    (138, 1.5, -62.5),
    (138, 1.5, -107.5),
    (12, 1.5, -160),
    (103, 1.5, -160),
    (12, 1.5, -10),
    (103, 1.5, -10),
]))
fillet.Radius = 5
doc.recompute()

fillet2 = body.newObject("PartDesign::Fillet", "Fillet001")
fillet2.Base = (fillet, edges_at(fillet, [(103, 1.5, -62.5), (103, 1.5, -107.5)]))
fillet2.Radius = 25
doc.recompute()

fillet3 = body.newObject("PartDesign::Fillet", "Fillet002")
fillet3.Base = (fillet2, edges_at(fillet2, [
    (18, 1.5, -96),
    (18, 1.5, -146),
    (43, 1.5, -146),
    (43, 1.5, -96),
]))
fillet3.Radius = 5

# Sketch on XZ plane
sketch12 = body.newObject("Sketcher::SketchObject", "Sketch011")
sketch12.AttachmentSupport = (doc.getObject("XZ_Plane"), [""])
sketch12.MapMode = "FlatFace"
sketch12.AttachmentOffset = App.Placement(App.Vector(0, 0, -3), App.Rotation())
sketch12.addGeometry(Part.Circle(App.Vector(17, -155, 0), App.Vector(0, 0, 1), 1.6), False)
sketch12.addGeometry(Part.Circle(App.Vector(98, -155, 0), App.Vector(0, 0, 1), 1.6), False)
sketch12.addGeometry(Part.Circle(App.Vector(17, -15, 0), App.Vector(0, 0, 1), 1.6), False)
sketch12.addGeometry(Part.Circle(App.Vector(98, -15, 0), App.Vector(0, 0, 1), 1.6), False)
sketch12.addConstraint(Sketcher.Constraint("Equal", 0, 1))
sketch12.addConstraint(Sketcher.Constraint("Equal", 1, 2))
sketch12.addConstraint(Sketcher.Constraint("Equal", 2, 3))
sketch12.addConstraint(Sketcher.Constraint("Horizontal", 0, 3, 1, 3))
sketch12.addConstraint(Sketcher.Constraint("Horizontal", 2, 3, 3, 3))
sketch12.addConstraint(Sketcher.Constraint("Vertical", 0, 3, 2, 3))
sketch12.addConstraint(Sketcher.Constraint("Vertical", 1, 3, 3, 3))
sketch12.addConstraint(Sketcher.Constraint("Diameter", 0, Q("3.2 mm")))
sketch12.addConstraint(Sketcher.Constraint("DistanceX", -1, 1, 0, 3, Q("17 mm")))
sketch12.addConstraint(Sketcher.Constraint("DistanceY", 0, 3, -1, 1, Q("155 mm")))
sketch12.addConstraint(Sketcher.Constraint("DistanceX", -1, 1, 1, 3, Q("98 mm")))
sketch12.addConstraint(Sketcher.Constraint("DistanceY", 2, 3, -1, 1, Q("15 mm")))
pocket8 = body.newObject("PartDesign::Pocket", "Pocket007")
pocket8.Profile = sketch12
pocket8.Type = "ThroughAll"
pocket8.Reversed = True
doc.recompute()

fillet4 = body.newObject("PartDesign::Fillet", "Fillet003")
fillet4.Base = (pocket8, edges_at(pocket8, [
    (56, 1.5, -28),
    (56, 1.5, -67),
    (95, 1.5, -67),
    (95, 1.5, -28),
    (38, 1.5, -38),
    (21, 1.5, -38),
    (21, 1.5, -67),
    (38, 1.5, -67),
    (58, 1.5, -86),
    (58, 1.5, -143),
    (94, 1.5, -143),
    (94, 1.5, -86),
]))
fillet4.Radius = 5

doc.recompute()
